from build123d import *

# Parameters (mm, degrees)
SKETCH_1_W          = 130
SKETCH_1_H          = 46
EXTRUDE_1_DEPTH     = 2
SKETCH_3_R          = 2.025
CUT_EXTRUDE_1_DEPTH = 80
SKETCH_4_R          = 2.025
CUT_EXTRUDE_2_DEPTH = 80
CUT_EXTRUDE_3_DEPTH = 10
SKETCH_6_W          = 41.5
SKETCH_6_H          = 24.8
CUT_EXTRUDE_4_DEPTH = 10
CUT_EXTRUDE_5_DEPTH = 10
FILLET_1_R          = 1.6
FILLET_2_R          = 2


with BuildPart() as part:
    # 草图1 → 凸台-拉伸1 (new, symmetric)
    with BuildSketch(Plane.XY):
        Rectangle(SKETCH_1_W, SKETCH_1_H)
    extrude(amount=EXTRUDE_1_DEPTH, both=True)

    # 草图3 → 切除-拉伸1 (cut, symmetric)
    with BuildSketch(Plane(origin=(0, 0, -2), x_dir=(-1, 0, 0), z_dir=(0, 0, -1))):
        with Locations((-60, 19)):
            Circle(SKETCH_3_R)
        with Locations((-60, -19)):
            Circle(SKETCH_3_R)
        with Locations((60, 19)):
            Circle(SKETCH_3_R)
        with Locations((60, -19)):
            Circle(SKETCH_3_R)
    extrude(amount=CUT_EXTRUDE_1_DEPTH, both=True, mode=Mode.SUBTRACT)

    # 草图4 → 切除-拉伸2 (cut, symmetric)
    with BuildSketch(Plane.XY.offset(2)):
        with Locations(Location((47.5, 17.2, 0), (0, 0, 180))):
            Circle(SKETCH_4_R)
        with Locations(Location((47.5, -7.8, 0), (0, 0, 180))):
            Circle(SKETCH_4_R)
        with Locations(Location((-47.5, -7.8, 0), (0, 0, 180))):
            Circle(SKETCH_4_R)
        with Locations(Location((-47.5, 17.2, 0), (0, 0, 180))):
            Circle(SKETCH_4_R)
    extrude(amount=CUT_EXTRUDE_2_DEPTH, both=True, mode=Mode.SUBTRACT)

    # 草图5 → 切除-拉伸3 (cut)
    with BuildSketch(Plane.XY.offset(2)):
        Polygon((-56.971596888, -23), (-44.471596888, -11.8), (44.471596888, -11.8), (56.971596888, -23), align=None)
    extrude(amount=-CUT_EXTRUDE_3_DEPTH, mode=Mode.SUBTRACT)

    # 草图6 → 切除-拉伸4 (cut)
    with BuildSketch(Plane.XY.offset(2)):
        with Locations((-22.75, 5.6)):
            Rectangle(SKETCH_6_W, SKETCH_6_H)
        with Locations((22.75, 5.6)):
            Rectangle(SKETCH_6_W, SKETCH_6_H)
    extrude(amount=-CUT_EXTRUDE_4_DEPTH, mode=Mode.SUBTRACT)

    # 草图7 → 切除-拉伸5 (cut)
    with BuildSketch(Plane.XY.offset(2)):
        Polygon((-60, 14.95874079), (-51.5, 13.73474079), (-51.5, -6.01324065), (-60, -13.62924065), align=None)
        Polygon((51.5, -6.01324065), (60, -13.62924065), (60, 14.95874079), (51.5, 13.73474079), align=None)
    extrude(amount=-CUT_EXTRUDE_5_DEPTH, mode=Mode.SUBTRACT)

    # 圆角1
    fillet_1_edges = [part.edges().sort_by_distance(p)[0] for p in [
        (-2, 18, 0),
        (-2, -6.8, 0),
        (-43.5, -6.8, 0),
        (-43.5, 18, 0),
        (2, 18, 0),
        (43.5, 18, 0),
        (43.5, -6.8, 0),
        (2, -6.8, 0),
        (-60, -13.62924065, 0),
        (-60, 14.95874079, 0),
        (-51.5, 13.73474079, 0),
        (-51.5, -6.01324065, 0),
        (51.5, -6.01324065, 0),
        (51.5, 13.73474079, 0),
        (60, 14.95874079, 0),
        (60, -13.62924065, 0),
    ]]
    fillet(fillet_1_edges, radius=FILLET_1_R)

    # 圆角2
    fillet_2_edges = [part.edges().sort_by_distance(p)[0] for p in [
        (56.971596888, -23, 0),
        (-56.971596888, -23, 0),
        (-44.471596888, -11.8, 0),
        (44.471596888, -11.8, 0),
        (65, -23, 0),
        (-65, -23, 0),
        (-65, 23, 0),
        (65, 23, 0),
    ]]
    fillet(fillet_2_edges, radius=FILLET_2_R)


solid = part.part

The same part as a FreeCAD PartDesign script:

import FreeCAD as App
import Part
import Sketcher

V = App.Vector


def edges_at(feature, points):
    """Names of the edges that pass closest to the given points."""
    edges = feature.Shape.Edges
    near = lambda p: min(range(len(edges)), key=lambda i: edges[i].distToShape(Part.Vertex(*p))[0])
    return sorted({f"Edge{near(p) + 1}" for p in points})


def add_polygon(sketch, points):
    """Adds a closed chain of lines whose ends are joined by coincident constraints."""
    first, n = sketch.GeometryCount, len(points)
    for a, b in zip(points, points[1:] + points[:1]):
        sketch.addGeometry(Part.LineSegment(App.Vector(*a, 0), App.Vector(*b, 0)), False)
    for i in range(n):
        sketch.addConstraint(Sketcher.Constraint("Coincident", first + i, 2, first + (i + 1) % n, 1))

doc = App.newDocument("Part")
body = doc.addObject("PartDesign::Body", "Body")

# Sketch on XY plane
sketch1 = doc.addObject("Sketcher::SketchObject", "Sketch")
body.addObject(sketch1)
sketch1.AttachmentSupport = (doc.XY_Plane, [""])
sketch1.MapMode = "FlatFace"
add_polygon(sketch1, [(-65, 23), (-65, -23), (65, -23), (65, 23)])  # lines 0-3
sketch1.addConstraint([
    Sketcher.Constraint("Vertical", 0),
    Sketcher.Constraint("Horizontal", 1),
    Sketcher.Constraint("Vertical", 2),
    Sketcher.Constraint("Horizontal", 3),
    Sketcher.Constraint("Symmetric", 0, 2, 2, 2, -1, 1),
    Sketcher.Constraint("DistanceX", 1, 1, 1, 2, 130.0),
    Sketcher.Constraint("DistanceY", 0, 2, 0, 1, 46.0),
])
pad1 = doc.addObject("PartDesign::Pad", "Pad")
body.addObject(pad1)
pad1.Profile = sketch1
pad1.Length = 4
pad1.Midplane = True

# Sketch on XY plane
sketch2 = doc.addObject("Sketcher::SketchObject", "Sketch001")
body.addObject(sketch2)
sketch2.AttachmentSupport = (doc.XY_Plane, [""])
sketch2.MapMode = "FlatFace"
sketch2.AttachmentOffset = App.Placement(V(0, 0, -2), App.Rotation())
sketch2.addGeometry([
    Part.Circle(V(60, 19, 0), V(0, 0, 1), 2),
    Part.Circle(V(60, -19, 0), V(0, 0, 1), 2),
    Part.Circle(V(-60, 19, 0), V(0, 0, 1), 2),
    Part.Circle(V(-60, -19, 0), V(0, 0, 1), 2),
], False)
sketch2.addConstraint([
    Sketcher.Constraint("Equal", 0, 1),
    Sketcher.Constraint("Equal", 1, 2),
    Sketcher.Constraint("Equal", 2, 3),
    Sketcher.Constraint("Symmetric", 1, 3, 2, 3, -1, 1),
    Sketcher.Constraint("Symmetric", 0, 3, 3, 3, -1, 1),
    Sketcher.Constraint("Symmetric", 0, 3, 2, 3, -2),
    Sketcher.Constraint("Diameter", 0, 4.05),
    Sketcher.Constraint("DistanceX", -1, 1, 0, 3, 60.0),
    Sketcher.Constraint("DistanceY", -1, 1, 0, 3, 19.0),
])
pocket1 = doc.addObject("PartDesign::Pocket", "Pocket")
body.addObject(pocket1)
pocket1.Profile = sketch2
pocket1.Length = 160
pocket1.Midplane = True

# Sketch on XY plane
sketch3 = doc.addObject("Sketcher::SketchObject", "Sketch002")
body.addObject(sketch3)
sketch3.AttachmentSupport = (doc.XY_Plane, [""])
sketch3.MapMode = "FlatFace"
sketch3.AttachmentOffset = App.Placement(V(0, 0, 2), App.Rotation())
sketch3.addGeometry([
    Part.Circle(V(47.5, 17.2, 0), V(0, 0, 1), 2),
    Part.Circle(V(47.5, -7.8, 0), V(0, 0, 1), 2),
    Part.Circle(V(-47.5, -7.8, 0), V(0, 0, 1), 2),
    Part.Circle(V(-47.5, 17.2, 0), V(0, 0, 1), 2),
], False)
sketch3.addConstraint([
    Sketcher.Constraint("Equal", 0, 1),
    Sketcher.Constraint("Equal", 1, 2),
    Sketcher.Constraint("Equal", 2, 3),
    Sketcher.Constraint("Symmetric", 1, 3, 2, 3, -2),
    Sketcher.Constraint("Symmetric", 0, 3, 3, 3, -2),
    Sketcher.Constraint("Vertical", 0, 3, 1, 3),
    Sketcher.Constraint("Diameter", 0, 4.05),
    Sketcher.Constraint("DistanceY", 1, 3, 0, 3, 25.0),
    Sketcher.Constraint("DistanceX", 2, 3, 1, 3, 95.0),
    Sketcher.Constraint("DistanceY", -1, 1, 0, 3, 17.2),
])
pocket2 = doc.addObject("PartDesign::Pocket", "Pocket001")
body.addObject(pocket2)
pocket2.Profile = sketch3
pocket2.Length = 160
pocket2.Midplane = True

# Sketch on XY plane
sketch4 = doc.addObject("Sketcher::SketchObject", "Sketch003")
body.addObject(sketch4)
sketch4.AttachmentSupport = (doc.XY_Plane, [""])
sketch4.MapMode = "FlatFace"
sketch4.AttachmentOffset = App.Placement(V(0, 0, 2), App.Rotation())
add_polygon(sketch4, [(-44, -12), (-57, -23), (57, -23), (44, -12)])  # lines 0-3
sketch4.addConstraint([
    Sketcher.Constraint("Horizontal", 1),
    Sketcher.Constraint("Horizontal", 3),
    Sketcher.Constraint("Equal", 0, 2),
    Sketcher.Constraint("DistanceY", 0, 2, -1, 1, 23.0),
    Sketcher.Constraint("DistanceY", 2, 2, -1, 1, 11.8),
    Sketcher.Constraint("DistanceX", 2, 2, 1, 2, 12.5),
    Sketcher.Constraint("DistanceX", 1, 1, 1, 2, 113.943194),
    Sketcher.Constraint("DistanceX", 0, 2, -1, 1, 56.971597),
])
pocket3 = doc.addObject("PartDesign::Pocket", "Pocket002")
body.addObject(pocket3)
pocket3.Profile = sketch4
pocket3.Length = 10

# Sketch on XY plane
sketch5 = doc.addObject("Sketcher::SketchObject", "Sketch004")
body.addObject(sketch5)
sketch5.AttachmentSupport = (doc.XY_Plane, [""])
sketch5.MapMode = "FlatFace"
sketch5.AttachmentOffset = App.Placement(V(0, 0, 2), App.Rotation())
add_polygon(sketch5, [(-44, 18), (-44, -7), (-2, -7), (-2, 18)])  # lines 0-3
add_polygon(sketch5, [(2, 18), (2, -7), (44, -7), (44, 18)])  # lines 4-7
sketch5.addConstraint([
    Sketcher.Constraint("Vertical", 0),
    Sketcher.Constraint("Horizontal", 1),
    Sketcher.Constraint("Vertical", 2),
    Sketcher.Constraint("Horizontal", 3),
    Sketcher.Constraint("Vertical", 4),
    Sketcher.Constraint("Horizontal", 5),
    Sketcher.Constraint("Vertical", 6),
    Sketcher.Constraint("Horizontal", 7),
    Sketcher.Constraint("Symmetric", 1, 2, 4, 2, -2),
    Sketcher.Constraint("Symmetric", 3, 2, 6, 2, -2),
    Sketcher.Constraint("DistanceX", 1, 1, 1, 2, 41.5),
    Sketcher.Constraint("DistanceY", 0, 2, 0, 1, 24.8),
    Sketcher.Constraint("DistanceX", 1, 2, -1, 1, 2.0),
    Sketcher.Constraint("DistanceY", -1, 1, 2, 2, 18.0),
])
pocket4 = doc.addObject("PartDesign::Pocket", "Pocket003")
body.addObject(pocket4)
pocket4.Profile = sketch5
pocket4.Length = 10

# Sketch on XY plane
sketch6 = doc.addObject("Sketcher::SketchObject", "Sketch005")
body.addObject(sketch6)
sketch6.AttachmentSupport = (doc.XY_Plane, [""])
sketch6.MapMode = "FlatFace"
sketch6.AttachmentOffset = App.Placement(V(0, 0, 2), App.Rotation())
add_polygon(sketch6, [(-52, 14), (-60, 15), (-60, -14), (-52, -6)])  # lines 0-3
add_polygon(sketch6, [(52, -6), (60, -14), (60, 15), (52, 14)])  # lines 4-7
sketch6.addConstraint([
    Sketcher.Constraint("Vertical", 1),
    Sketcher.Constraint("Vertical", 3),
    Sketcher.Constraint("Vertical", 5),
    Sketcher.Constraint("Vertical", 7),
    Sketcher.Constraint("Symmetric", 1, 2, 4, 2, -2),
    Sketcher.Constraint("Symmetric", 3, 2, 6, 2, -2),
    Sketcher.Constraint("Horizontal", 0, 2, 5, 2),
    Sketcher.Constraint("Horizontal", 2, 2, 7, 2),
    Sketcher.Constraint("DistanceX", 0, 2, -1, 1, 60.0),
    Sketcher.Constraint("DistanceX", 3, 2, 6, 2, 103.0),
    Sketcher.Constraint("DistanceY", 1, 2, 2, 2, 7.616),
    Sketcher.Constraint("DistanceY", 3, 2, 0, 2, 1.224),
    Sketcher.Constraint("DistanceY", 1, 2, 1, 1, 28.587981),
    Sketcher.Constraint("DistanceY", -1, 1, 0, 2, 14.958741),
])
pocket5 = doc.addObject("PartDesign::Pocket", "Pocket004")
body.addObject(pocket5)
pocket5.Profile = sketch6
pocket5.Length = 10
doc.recompute()

fillet = doc.addObject("PartDesign::Fillet", "Fillet")
body.addObject(fillet)
fillet.Base = (pocket5, edges_at(pocket5, [
    (-2, 18, 0),
    (-2, -6.8, 0),
    (-43.5, -6.8, 0),
    (-43.5, 18, 0),
    (2, 18, 0),
    (43.5, 18, 0),
    (43.5, -6.8, 0),
    (2, -6.8, 0),
    (-60, -13.629, 0),
    (-60, 14.959, 0),
    (-51.5, 13.735, 0),
    (-51.5, -6.013, 0),
    (51.5, -6.013, 0),
    (51.5, 13.735, 0),
    (60, 14.959, 0),
    (60, -13.629, 0),
]))
fillet.Radius = 1.6
doc.recompute()

fillet2 = doc.addObject("PartDesign::Fillet", "Fillet001")
body.addObject(fillet2)
fillet2.Base = (fillet, edges_at(fillet, [
    (56.972, -23, 0),
    (-56.972, -23, 0),
    (-44.472, -11.8, 0),
    (44.472, -11.8, 0),
    (65, -23, 0),
    (-65, -23, 0),
    (-65, 23, 0),
    (65, 23, 0),
]))
fillet2.Radius = 2

doc.recompute()
